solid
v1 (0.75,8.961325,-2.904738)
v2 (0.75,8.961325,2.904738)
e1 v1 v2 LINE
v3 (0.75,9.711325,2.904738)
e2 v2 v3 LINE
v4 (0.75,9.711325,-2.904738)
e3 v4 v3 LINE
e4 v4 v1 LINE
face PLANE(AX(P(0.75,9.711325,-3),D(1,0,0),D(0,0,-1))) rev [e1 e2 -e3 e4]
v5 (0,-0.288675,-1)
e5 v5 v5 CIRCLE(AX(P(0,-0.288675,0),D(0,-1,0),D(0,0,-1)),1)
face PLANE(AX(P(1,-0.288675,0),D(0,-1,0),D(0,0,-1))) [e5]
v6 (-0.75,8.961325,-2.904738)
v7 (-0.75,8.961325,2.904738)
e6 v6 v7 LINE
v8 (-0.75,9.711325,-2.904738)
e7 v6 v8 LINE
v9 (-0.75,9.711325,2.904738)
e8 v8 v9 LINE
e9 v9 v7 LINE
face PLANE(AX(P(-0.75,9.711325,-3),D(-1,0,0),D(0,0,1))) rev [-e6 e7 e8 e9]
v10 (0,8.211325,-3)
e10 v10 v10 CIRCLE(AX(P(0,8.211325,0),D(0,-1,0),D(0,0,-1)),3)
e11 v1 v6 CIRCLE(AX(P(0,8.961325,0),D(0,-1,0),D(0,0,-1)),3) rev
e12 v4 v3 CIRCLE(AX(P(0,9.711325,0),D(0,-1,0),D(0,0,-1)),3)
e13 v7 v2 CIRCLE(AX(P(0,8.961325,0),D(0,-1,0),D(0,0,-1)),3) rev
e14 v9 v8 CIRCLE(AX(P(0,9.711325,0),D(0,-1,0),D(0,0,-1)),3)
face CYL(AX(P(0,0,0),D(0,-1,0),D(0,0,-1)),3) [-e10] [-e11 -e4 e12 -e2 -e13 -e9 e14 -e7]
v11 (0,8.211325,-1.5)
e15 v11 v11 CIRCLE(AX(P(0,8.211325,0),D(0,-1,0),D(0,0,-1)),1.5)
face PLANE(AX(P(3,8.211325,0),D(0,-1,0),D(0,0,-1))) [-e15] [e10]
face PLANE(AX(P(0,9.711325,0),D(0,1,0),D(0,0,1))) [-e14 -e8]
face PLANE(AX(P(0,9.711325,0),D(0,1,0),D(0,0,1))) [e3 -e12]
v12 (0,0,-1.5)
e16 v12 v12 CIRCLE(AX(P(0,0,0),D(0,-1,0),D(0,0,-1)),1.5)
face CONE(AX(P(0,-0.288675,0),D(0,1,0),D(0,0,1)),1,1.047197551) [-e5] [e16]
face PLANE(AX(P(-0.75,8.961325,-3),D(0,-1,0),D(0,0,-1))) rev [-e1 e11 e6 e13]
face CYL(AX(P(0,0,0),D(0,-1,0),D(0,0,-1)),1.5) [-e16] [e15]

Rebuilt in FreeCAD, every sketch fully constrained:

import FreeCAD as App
import Part
import Sketcher

V = App.Vector
Q = App.Units.Quantity

doc = App.newDocument("Part")
params = doc.addObject("Spreadsheet::Sheet", "Params")
for row, (alias, value) in enumerate([
    ("sketch1_width", "1 mm"),
    ("sketch1_width2", "3 mm"),
    ("sketch1_height", "10 mm"),
    ("sketch1_width3", "1.5 mm"),
    ("revolution_angle", "360 deg"),
    ("sketch2_width", "1.5 mm"),
    ("sketch2_height", "0.75 mm"),
], start=1):
    params.set(f"A{row}", alias)
    params.set(f"B{row}", "=" + value)
    params.setAlias(f"B{row}", alias)

body = doc.addObject("PartDesign::Body", "Body")

# Sketch on XY plane
sketch1 = body.newObject("Sketcher::SketchObject", "Sketch")
sketch1.AttachmentSupport = (doc.getObject("XY_Plane"), [""])
sketch1.MapMode = "FlatFace"
sketch1.addGeometry([
    Part.LineSegment(V(0, 9.7, 0), V(0, -0.3, 0)),  # 0
    Part.LineSegment(V(0, -0.3, 0), V(1, -0.3, 0)),  # 1
    Part.LineSegment(V(1, -0.3, 0), V(1.5, 0, 0)),  # 2
    Part.LineSegment(V(1.5, 0, 0), V(1.5, 8.2, 0)),  # 3
    Part.LineSegment(V(1.5, 8.2, 0), V(3, 8.2, 0)),  # 4
    Part.LineSegment(V(3, 8.2, 0), V(3, 9.7, 0)),  # 5
    Part.LineSegment(V(3, 9.7, 0), V(0, 9.7, 0)),  # 6
], False)
sketch1.addConstraint([
    Sketcher.Constraint("Coincident", 0, 2, 1, 1),
    Sketcher.Constraint("Coincident", 1, 2, 2, 1),
    Sketcher.Constraint("Coincident", 2, 2, 3, 1),
    Sketcher.Constraint("Coincident", 3, 2, 4, 1),
    Sketcher.Constraint("Coincident", 4, 2, 5, 1),
    Sketcher.Constraint("Coincident", 5, 2, 6, 1),
    Sketcher.Constraint("Coincident", 6, 2, 0, 1),
    Sketcher.Constraint("Vertical", 0),
    Sketcher.Constraint("Horizontal", 1),
    Sketcher.Constraint("Vertical", 3),
    Sketcher.Constraint("Horizontal", 4),
    Sketcher.Constraint("Vertical", 5),
    Sketcher.Constraint("Horizontal", 6),
    Sketcher.Constraint("PointOnObject", 0, 2, -2),
    Sketcher.Constraint("PointOnObject", 2, 2, -1),
    Sketcher.Constraint("Equal", 4, 5),
    Sketcher.Constraint("DistanceX", 1, 1, 1, 2, 1.0),
    Sketcher.Constraint("DistanceX", 6, 2, 6, 1, 3.0),
    Sketcher.Constraint("DistanceY", 0, 2, 0, 1, 10.0),
    Sketcher.Constraint("Angle", 2, Q("30 deg")),
    Sketcher.Constraint("DistanceX", 4, 1, 4, 2, 1.5),
])
sketch1.setExpression("Constraints[16]", "Params.sketch1_width")
sketch1.setExpression("Constraints[17]", "Params.sketch1_width2")
sketch1.setExpression("Constraints[18]", "Params.sketch1_height")
sketch1.setExpression("Constraints[20]", "Params.sketch1_width3")
revolution = body.newObject("PartDesign::Revolution", "Revolution")
revolution.Profile = sketch1
revolution.ReferenceAxis = (sketch1, ["V_Axis"])
revolution.setExpression("Angle", "Params.revolution_angle")

# Sketch on XY plane
sketch2 = body.newObject("Sketcher::SketchObject", "Sketch001")
sketch2.AttachmentSupport = (doc.getObject("XY_Plane"), [""])
sketch2.MapMode = "FlatFace"
sketch2.addGeometry([
    Part.LineSegment(V(-0.8, 9.7, 0), V(-0.8, 9, 0)),
    Part.LineSegment(V(-0.8, 9, 0), V(0.8, 9, 0)),
    Part.LineSegment(V(0.8, 9, 0), V(0.8, 9.7, 0)),
    Part.LineSegment(V(0.8, 9.7, 0), V(-0.8, 9.7, 0)),
], False)
sketch2.addConstraint([
    Sketcher.Constraint("Coincident", 0, 2, 1, 1),
    Sketcher.Constraint("Coincident", 1, 2, 2, 1),
    Sketcher.Constraint("Coincident", 2, 2, 3, 1),
    Sketcher.Constraint("Coincident", 3, 2, 0, 1),
    Sketcher.Constraint("Vertical", 0),
    Sketcher.Constraint("Horizontal", 1),
    Sketcher.Constraint("Vertical", 2),
    Sketcher.Constraint("Horizontal", 3),
    Sketcher.Constraint("DistanceX", 1, 1, 1, 2, 1.5),
    Sketcher.Constraint("DistanceY", 0, 2, 0, 1, 0.75),
    Sketcher.Constraint("DistanceX", 0, 2, -1, 1, 0.75),
    Sketcher.Constraint("DistanceY", -1, 1, 0, 2, 8.961325),
])
sketch2.setExpression("Constraints[8]", "Params.sketch2_width")
sketch2.setExpression("Constraints[9]", "Params.sketch2_height")
pocket1 = body.newObject("PartDesign::Pocket", "Pocket")
pocket1.Profile = sketch2
pocket1.Type = "ThroughAll"
pocket1.Midplane = True

doc.recompute()
